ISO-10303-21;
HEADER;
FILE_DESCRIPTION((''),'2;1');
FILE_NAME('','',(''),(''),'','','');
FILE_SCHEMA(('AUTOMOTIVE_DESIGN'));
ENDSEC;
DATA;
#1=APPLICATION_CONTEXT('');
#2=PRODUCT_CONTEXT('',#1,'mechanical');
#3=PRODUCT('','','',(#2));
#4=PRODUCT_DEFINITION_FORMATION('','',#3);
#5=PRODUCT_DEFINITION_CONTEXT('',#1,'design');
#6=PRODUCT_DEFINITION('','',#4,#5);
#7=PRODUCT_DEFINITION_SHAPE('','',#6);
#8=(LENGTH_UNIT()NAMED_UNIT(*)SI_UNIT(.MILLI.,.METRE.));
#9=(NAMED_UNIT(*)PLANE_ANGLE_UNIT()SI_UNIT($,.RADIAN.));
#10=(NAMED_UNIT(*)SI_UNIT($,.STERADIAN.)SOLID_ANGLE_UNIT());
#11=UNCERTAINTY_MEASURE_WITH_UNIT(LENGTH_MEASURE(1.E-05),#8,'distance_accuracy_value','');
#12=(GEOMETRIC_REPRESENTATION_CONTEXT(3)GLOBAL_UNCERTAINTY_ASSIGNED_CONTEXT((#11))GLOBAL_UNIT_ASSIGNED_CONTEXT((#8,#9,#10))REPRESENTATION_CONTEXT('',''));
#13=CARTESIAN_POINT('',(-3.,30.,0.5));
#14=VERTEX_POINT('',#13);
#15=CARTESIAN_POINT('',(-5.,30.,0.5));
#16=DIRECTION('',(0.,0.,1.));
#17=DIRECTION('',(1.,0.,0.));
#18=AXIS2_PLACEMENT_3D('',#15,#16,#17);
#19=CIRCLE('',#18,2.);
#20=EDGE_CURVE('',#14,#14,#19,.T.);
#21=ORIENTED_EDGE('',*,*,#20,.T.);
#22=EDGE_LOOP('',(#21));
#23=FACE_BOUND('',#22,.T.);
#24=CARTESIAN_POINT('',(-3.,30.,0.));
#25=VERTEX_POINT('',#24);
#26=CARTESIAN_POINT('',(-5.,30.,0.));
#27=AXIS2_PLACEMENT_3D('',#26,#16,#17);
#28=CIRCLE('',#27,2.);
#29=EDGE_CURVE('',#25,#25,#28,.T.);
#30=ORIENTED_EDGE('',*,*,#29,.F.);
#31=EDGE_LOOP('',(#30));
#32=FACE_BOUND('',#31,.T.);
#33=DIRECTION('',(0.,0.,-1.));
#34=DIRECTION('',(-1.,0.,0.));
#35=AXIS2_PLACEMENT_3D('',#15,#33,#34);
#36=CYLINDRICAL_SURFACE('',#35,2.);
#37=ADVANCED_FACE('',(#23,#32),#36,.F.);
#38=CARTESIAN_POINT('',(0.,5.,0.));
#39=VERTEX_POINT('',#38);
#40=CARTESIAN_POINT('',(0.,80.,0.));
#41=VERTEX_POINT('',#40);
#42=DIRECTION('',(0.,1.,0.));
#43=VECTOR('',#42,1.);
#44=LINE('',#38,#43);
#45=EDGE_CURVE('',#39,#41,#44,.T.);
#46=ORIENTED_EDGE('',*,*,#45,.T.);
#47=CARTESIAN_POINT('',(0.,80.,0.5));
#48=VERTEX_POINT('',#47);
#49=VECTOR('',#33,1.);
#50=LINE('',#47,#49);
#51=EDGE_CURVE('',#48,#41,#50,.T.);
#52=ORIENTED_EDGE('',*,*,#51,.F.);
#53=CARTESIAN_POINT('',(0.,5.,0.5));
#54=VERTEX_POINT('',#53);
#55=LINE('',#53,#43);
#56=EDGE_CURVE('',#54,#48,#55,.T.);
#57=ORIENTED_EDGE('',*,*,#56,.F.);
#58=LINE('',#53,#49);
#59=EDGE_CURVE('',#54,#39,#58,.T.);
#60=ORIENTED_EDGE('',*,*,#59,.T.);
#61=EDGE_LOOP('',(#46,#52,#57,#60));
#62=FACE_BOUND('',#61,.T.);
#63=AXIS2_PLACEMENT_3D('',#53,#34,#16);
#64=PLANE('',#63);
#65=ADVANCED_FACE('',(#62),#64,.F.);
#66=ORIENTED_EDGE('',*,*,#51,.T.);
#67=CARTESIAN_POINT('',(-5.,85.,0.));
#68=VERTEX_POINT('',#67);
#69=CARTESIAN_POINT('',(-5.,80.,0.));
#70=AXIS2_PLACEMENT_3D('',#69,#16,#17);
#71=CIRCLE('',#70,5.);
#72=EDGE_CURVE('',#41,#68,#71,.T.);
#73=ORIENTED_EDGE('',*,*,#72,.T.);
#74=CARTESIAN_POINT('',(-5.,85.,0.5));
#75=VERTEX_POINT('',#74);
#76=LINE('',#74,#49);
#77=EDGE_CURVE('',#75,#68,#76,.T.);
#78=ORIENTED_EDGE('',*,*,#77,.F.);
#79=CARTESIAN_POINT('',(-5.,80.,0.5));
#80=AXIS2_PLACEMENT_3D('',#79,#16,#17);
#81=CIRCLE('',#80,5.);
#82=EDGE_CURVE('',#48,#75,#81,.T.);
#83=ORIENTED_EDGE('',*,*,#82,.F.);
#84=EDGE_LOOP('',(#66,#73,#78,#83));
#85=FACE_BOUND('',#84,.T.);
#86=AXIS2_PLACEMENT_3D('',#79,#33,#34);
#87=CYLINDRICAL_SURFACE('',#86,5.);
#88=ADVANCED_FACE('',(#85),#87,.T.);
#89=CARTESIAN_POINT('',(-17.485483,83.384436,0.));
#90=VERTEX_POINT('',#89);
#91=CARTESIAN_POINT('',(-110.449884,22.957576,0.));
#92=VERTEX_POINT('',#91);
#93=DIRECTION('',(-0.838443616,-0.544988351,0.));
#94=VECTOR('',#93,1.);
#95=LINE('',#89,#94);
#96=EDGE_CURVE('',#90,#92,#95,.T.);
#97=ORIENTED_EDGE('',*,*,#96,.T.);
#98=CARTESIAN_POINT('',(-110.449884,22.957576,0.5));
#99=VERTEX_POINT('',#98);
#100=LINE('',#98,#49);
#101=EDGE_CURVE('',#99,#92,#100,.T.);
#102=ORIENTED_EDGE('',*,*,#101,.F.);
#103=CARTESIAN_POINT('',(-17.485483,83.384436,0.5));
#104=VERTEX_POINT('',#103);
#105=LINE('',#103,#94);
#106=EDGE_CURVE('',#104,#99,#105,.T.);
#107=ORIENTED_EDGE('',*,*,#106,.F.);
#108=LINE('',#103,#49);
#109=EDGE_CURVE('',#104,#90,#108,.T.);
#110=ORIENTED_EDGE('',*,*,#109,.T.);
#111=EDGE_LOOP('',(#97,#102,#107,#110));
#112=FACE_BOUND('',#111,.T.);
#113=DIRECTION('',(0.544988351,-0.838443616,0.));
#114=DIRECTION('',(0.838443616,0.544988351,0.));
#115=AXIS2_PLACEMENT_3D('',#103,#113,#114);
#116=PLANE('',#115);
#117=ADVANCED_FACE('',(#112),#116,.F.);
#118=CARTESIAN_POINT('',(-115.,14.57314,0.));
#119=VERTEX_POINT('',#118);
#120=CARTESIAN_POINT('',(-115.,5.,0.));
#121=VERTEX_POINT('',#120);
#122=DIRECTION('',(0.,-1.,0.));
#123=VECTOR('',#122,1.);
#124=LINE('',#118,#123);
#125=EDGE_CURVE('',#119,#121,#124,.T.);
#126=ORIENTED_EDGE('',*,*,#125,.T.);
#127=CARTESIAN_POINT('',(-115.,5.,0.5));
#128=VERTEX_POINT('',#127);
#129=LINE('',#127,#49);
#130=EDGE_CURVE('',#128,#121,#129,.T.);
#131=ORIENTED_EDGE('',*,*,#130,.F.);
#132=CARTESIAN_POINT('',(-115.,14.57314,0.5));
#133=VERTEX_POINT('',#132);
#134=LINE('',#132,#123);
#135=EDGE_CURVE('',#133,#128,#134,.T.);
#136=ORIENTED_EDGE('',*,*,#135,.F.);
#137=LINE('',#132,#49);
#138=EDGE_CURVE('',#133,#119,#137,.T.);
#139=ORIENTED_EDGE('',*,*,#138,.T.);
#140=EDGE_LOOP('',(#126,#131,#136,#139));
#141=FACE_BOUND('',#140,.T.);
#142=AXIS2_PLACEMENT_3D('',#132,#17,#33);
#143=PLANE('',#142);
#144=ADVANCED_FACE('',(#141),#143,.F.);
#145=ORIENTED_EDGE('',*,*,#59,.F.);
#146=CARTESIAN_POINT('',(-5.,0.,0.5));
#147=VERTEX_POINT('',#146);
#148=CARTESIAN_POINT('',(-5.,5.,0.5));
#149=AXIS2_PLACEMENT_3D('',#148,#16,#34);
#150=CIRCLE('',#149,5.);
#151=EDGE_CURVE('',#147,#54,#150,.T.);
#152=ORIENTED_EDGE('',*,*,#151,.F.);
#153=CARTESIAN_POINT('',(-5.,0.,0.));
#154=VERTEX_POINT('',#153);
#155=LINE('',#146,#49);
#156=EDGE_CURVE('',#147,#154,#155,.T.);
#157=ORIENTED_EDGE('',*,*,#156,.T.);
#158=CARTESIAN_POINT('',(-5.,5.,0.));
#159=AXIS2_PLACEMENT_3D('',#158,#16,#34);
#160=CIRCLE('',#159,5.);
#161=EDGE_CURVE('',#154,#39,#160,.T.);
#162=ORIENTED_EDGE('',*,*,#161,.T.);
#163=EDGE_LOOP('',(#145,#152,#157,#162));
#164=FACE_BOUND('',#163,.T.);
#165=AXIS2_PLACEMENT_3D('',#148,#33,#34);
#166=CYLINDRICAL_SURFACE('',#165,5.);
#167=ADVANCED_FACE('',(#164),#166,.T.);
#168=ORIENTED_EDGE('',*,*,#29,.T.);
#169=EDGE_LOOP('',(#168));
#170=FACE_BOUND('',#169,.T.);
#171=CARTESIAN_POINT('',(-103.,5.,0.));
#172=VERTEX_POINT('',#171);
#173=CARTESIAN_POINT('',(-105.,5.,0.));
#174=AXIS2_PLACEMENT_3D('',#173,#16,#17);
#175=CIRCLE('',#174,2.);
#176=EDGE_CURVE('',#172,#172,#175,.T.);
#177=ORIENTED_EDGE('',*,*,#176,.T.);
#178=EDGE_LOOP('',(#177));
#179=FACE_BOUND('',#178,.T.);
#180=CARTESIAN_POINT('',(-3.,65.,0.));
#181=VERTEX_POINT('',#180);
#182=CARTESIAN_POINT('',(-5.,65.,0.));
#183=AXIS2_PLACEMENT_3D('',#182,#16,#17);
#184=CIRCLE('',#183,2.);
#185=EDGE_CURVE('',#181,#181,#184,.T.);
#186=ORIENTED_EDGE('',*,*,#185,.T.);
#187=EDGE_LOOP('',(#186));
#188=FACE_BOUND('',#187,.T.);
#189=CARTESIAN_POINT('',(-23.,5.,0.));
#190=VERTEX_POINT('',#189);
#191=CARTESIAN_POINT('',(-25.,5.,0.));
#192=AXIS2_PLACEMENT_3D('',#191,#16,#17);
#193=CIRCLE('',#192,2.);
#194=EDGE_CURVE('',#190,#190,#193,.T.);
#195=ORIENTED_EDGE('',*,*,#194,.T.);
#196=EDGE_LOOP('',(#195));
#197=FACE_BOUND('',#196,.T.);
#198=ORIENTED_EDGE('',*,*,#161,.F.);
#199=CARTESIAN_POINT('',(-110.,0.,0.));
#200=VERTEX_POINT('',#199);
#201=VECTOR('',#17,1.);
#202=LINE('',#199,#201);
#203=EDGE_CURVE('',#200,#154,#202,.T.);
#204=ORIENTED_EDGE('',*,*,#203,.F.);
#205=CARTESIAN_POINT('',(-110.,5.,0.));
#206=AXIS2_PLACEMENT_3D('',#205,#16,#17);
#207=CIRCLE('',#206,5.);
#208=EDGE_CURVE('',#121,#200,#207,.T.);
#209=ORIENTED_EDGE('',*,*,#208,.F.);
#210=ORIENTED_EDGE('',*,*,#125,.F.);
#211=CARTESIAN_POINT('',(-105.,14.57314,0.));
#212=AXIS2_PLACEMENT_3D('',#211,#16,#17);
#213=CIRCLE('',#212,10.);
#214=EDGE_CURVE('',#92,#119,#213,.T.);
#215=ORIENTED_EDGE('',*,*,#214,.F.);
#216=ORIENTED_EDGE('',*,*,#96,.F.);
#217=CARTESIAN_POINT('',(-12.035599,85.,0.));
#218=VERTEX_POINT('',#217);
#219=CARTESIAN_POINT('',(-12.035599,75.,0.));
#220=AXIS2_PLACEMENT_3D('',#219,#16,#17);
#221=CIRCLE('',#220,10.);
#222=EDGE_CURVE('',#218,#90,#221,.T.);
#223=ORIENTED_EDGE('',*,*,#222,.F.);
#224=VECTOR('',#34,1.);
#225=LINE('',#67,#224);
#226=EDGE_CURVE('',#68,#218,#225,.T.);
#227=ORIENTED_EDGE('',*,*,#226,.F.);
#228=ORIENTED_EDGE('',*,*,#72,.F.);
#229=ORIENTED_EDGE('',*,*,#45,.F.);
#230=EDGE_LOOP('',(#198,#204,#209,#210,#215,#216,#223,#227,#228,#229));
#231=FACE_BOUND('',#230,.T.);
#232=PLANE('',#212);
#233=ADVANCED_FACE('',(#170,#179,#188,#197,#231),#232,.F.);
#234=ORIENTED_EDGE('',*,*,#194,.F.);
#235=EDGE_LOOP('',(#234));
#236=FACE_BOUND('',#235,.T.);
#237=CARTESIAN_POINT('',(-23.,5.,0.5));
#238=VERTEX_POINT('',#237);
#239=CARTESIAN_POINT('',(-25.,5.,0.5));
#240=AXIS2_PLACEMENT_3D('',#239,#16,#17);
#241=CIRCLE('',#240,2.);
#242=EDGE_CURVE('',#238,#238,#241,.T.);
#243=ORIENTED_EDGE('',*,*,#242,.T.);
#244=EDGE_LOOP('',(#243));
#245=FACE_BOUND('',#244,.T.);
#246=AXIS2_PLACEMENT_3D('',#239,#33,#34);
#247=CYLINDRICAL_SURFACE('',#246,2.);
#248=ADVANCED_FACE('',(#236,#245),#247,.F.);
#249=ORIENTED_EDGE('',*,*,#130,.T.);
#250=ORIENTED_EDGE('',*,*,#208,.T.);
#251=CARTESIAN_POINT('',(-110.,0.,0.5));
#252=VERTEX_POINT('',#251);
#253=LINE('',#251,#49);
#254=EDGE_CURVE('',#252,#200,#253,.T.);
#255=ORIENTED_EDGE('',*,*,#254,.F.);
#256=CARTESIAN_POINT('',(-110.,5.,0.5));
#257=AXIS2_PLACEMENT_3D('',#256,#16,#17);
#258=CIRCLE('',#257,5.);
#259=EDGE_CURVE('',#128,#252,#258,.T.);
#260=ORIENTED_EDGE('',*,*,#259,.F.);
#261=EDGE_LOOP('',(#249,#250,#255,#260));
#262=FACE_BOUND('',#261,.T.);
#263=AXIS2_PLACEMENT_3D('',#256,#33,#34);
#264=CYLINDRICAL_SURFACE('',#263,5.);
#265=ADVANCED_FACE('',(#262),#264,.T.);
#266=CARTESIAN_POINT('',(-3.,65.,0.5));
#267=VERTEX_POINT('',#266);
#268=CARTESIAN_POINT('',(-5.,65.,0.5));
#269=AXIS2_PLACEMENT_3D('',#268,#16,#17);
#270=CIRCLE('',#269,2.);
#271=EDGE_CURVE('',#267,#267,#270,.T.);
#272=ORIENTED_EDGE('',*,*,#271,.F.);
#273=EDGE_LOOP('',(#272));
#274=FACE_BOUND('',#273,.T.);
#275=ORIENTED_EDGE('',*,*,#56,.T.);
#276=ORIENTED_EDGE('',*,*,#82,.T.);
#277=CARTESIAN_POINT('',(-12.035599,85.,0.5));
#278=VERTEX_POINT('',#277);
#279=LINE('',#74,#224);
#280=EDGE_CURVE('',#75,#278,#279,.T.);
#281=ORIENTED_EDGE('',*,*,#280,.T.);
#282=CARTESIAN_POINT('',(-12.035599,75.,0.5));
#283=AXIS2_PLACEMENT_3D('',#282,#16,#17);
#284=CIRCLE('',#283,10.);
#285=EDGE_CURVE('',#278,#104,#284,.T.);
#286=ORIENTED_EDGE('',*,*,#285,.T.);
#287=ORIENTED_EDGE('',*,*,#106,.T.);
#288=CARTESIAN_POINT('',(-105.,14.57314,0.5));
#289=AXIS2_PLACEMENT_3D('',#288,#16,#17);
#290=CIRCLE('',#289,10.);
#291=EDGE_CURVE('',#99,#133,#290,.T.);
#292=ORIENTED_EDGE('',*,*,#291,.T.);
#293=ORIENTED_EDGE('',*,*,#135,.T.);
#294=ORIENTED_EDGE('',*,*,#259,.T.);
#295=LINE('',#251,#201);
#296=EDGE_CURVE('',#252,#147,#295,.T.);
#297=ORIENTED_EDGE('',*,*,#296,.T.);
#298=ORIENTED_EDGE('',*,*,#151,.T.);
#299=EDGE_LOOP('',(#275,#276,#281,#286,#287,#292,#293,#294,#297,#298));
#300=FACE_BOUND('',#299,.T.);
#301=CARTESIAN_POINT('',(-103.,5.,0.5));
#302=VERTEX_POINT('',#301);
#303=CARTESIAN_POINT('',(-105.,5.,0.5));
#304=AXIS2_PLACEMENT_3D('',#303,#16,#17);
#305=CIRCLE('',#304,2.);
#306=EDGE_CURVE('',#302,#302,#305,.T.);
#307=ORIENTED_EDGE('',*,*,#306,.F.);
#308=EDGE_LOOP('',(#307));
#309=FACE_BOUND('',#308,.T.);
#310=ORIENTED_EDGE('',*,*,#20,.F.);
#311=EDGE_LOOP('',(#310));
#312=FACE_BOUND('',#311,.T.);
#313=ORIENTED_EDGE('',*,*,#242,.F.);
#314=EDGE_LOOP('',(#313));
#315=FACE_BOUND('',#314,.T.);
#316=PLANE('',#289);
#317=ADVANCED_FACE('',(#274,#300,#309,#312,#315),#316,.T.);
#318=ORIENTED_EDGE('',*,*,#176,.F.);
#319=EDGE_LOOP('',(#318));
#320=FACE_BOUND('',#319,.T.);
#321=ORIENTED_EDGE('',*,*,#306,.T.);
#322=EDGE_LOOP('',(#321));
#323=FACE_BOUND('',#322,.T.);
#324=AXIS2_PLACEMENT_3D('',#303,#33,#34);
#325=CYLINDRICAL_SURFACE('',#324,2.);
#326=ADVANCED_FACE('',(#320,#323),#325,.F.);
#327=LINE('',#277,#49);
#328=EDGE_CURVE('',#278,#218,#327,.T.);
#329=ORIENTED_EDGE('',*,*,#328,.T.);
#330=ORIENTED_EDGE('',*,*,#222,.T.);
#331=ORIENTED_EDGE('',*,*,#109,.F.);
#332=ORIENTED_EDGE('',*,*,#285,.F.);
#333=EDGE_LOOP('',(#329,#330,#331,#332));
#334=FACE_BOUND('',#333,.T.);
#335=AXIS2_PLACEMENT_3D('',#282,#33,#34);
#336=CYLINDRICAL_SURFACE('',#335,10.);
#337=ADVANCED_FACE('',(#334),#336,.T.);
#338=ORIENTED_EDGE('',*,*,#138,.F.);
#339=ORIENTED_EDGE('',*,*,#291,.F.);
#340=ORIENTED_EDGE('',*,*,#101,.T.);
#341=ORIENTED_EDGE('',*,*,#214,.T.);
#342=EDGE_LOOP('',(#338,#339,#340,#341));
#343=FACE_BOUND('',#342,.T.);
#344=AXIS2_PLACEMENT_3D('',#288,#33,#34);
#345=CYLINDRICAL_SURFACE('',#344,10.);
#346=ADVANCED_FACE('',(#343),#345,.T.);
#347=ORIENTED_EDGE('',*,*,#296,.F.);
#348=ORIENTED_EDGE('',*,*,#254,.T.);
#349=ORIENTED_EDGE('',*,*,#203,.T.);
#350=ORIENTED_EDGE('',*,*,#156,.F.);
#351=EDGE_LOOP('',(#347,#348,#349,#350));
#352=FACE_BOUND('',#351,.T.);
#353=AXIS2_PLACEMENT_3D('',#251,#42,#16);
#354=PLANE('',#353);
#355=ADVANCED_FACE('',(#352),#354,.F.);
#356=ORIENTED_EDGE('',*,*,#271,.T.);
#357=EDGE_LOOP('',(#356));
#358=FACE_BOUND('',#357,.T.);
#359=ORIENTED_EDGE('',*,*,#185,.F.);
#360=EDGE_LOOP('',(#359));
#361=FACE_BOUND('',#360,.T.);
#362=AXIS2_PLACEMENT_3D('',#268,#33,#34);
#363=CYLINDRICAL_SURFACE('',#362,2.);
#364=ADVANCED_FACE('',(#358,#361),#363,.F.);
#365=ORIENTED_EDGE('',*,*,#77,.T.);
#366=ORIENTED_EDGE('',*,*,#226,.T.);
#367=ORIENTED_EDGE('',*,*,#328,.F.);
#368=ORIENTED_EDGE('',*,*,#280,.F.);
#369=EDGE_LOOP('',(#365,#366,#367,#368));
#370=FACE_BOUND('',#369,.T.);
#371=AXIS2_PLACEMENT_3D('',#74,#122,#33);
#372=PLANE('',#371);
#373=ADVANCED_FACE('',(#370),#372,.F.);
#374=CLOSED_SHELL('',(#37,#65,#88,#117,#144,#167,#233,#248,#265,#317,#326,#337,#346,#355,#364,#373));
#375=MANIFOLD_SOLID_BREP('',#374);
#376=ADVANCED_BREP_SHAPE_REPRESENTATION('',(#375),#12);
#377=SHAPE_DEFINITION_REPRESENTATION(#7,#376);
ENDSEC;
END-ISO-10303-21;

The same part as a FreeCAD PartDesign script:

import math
import FreeCAD as App
import Part
import Sketcher
Q = App.Units.Quantity

doc = App.newDocument("Part")
body = doc.addObject("PartDesign::Body", "Body")

sketch1 = body.newObject("Sketcher::SketchObject", "Sketch")
sketch1.AttachmentSupport = (doc.getObject("XY_Plane"), [""])
sketch1.MapMode = "FlatFace"
sketch1.addGeometry(Part.LineSegment(App.Vector(0, 5, 0), App.Vector(0, 80, 0)), False)
sketch1.addGeometry(Part.ArcOfCircle(Part.Circle(App.Vector(-5, 80, 0), App.Vector(0, 0, 1), 5), math.radians(0), math.radians(90)), False)
sketch1.addGeometry(Part.LineSegment(App.Vector(-5, 85, 0), App.Vector(-12.035599, 85, 0)), False)
sketch1.addGeometry(Part.ArcOfCircle(Part.Circle(App.Vector(-12.035599, 75, 0), App.Vector(0, 0, 1), 10), math.radians(90), math.radians(123.023868)), False)
sketch1.addGeometry(Part.LineSegment(App.Vector(-17.485483, 83.384436, 0), App.Vector(-110.449884, 22.957576, 0)), False)
sketch1.addGeometry(Part.ArcOfCircle(Part.Circle(App.Vector(-105, 14.57314, 0), App.Vector(0, 0, 1), 10), math.radians(123.023868), math.radians(180)), False)
sketch1.addGeometry(Part.LineSegment(App.Vector(-115, 14.57314, 0), App.Vector(-115, 5, 0)), False)
sketch1.addGeometry(Part.ArcOfCircle(Part.Circle(App.Vector(-110, 5, 0), App.Vector(0, 0, 1), 5), math.radians(180), math.radians(270)), False)
sketch1.addGeometry(Part.LineSegment(App.Vector(-110, 0, 0), App.Vector(-5, 0, 0)), False)
sketch1.addGeometry(Part.ArcOfCircle(Part.Circle(App.Vector(-5, 5, 0), App.Vector(0, 0, 1), 5), math.radians(-90), math.radians(0)), False)
sketch1.addGeometry(Part.Circle(App.Vector(-105, 5, 0), App.Vector(0, 0, 1), 2), False)
sketch1.addGeometry(Part.Circle(App.Vector(-25, 5, 0), App.Vector(0, 0, 1), 2), False)
sketch1.addGeometry(Part.Circle(App.Vector(-5, 30, 0), App.Vector(0, 0, 1), 2), False)
sketch1.addGeometry(Part.Circle(App.Vector(-5, 65, 0), App.Vector(0, 0, 1), 2), False)
sketch1.addConstraint(Sketcher.Constraint("Tangent", 0, 2, 1, 1))
sketch1.addConstraint(Sketcher.Constraint("Tangent", 1, 2, 2, 1))
sketch1.addConstraint(Sketcher.Constraint("Tangent", 2, 2, 3, 1))
sketch1.addConstraint(Sketcher.Constraint("Tangent", 3, 2, 4, 1))
sketch1.addConstraint(Sketcher.Constraint("Tangent", 4, 2, 5, 1))
sketch1.addConstraint(Sketcher.Constraint("Tangent", 5, 2, 6, 1))
sketch1.addConstraint(Sketcher.Constraint("Tangent", 6, 2, 7, 1))
sketch1.addConstraint(Sketcher.Constraint("Tangent", 7, 2, 8, 1))
sketch1.addConstraint(Sketcher.Constraint("Tangent", 8, 2, 9, 1))
sketch1.addConstraint(Sketcher.Constraint("Tangent", 9, 2, 0, 1))
sketch1.addConstraint(Sketcher.Constraint("Vertical", 0))
sketch1.addConstraint(Sketcher.Constraint("Horizontal", 2))
sketch1.addConstraint(Sketcher.Constraint("Vertical", 6))
sketch1.addConstraint(Sketcher.Constraint("Horizontal", 8))
sketch1.addConstraint(Sketcher.Constraint("Equal", 3, 5))
sketch1.addConstraint(Sketcher.Constraint("Equal", 1, 7))
sketch1.addConstraint(Sketcher.Constraint("Equal", 7, 9))
sketch1.addConstraint(Sketcher.Constraint("Equal", 10, 11))
sketch1.addConstraint(Sketcher.Constraint("Equal", 11, 12))
sketch1.addConstraint(Sketcher.Constraint("Equal", 12, 13))
sketch1.addConstraint(Sketcher.Constraint("PointOnObject", 0, 2, -2))
sketch1.addConstraint(Sketcher.Constraint("PointOnObject", 7, 2, -1))
sketch1.addConstraint(Sketcher.Constraint("Horizontal", 9, 3, 10, 3))
sketch1.addConstraint(Sketcher.Constraint("Horizontal", 10, 3, 11, 3))
sketch1.addConstraint(Sketcher.Constraint("Vertical", 5, 3, 10, 3))
sketch1.addConstraint(Sketcher.Constraint("Vertical", 9, 3, 12, 3))
sketch1.addConstraint(Sketcher.Constraint("Vertical", 12, 3, 13, 3))
sketch1.addConstraint(Sketcher.Constraint("Diameter", 10, Q("4 mm")))
sketch1.addConstraint(Sketcher.Constraint("Radius", 1, Q("5 mm")))
sketch1.addConstraint(Sketcher.Constraint("Radius", 3, Q("10 mm")))
sketch1.addConstraint(Sketcher.Constraint("DistanceX", 8, 1, 8, 2, Q("105 mm")))
sketch1.addConstraint(Sketcher.Constraint("DistanceY", 0, 1, 0, 2, Q("75 mm")))
sketch1.addConstraint(Sketcher.Constraint("DistanceX", 11, 3, -1, 1, Q("25 mm")))
sketch1.addConstraint(Sketcher.Constraint("DistanceY", -1, 1, 12, 3, Q("30 mm")))
sketch1.addConstraint(Sketcher.Constraint("DistanceY", -1, 1, 13, 3, Q("65 mm")))
sketch1.addConstraint(Sketcher.Constraint("DistanceX", 2, 2, 2, 1, Q("7.035599 mm")))
sketch1.addConstraint(Sketcher.Constraint("DistanceY", 6, 2, 6, 1, Q("9.57314 mm")))
pad1 = body.newObject("PartDesign::Pad", "Pad")
pad1.Profile = sketch1
pad1.Length = 0.5

doc.recompute()
